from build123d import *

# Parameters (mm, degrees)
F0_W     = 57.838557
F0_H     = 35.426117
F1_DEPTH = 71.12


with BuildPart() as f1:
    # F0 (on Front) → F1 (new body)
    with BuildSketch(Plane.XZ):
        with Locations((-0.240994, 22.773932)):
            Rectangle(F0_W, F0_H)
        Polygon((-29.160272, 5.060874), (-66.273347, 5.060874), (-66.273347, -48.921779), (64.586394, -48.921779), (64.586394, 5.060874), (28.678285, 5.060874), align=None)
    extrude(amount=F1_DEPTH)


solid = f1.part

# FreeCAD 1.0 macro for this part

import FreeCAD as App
import Part
import Sketcher
from FreeCAD import Vector
Q = App.Units.Quantity

doc = App.newDocument("Part")
body = doc.addObject("PartDesign::Body", "Body")

sketch1 = doc.addObject("Sketcher::SketchObject", "Sketch")
body.addObject(sketch1)
sketch1.AttachmentSupport = (doc.XZ_Plane, [""])
sketch1.MapMode = "FlatFace"
sketch1.addGeometry(Part.LineSegment(Vector(-29, 5, 0), Vector(-66, 5, 0)), False)
sketch1.addGeometry(Part.LineSegment(Vector(-66, 5, 0), Vector(-66, -49, 0)), False)
sketch1.addGeometry(Part.LineSegment(Vector(-66, -49, 0), Vector(65, -49, 0)), False)
sketch1.addGeometry(Part.LineSegment(Vector(65, -49, 0), Vector(65, 5, 0)), False)
sketch1.addGeometry(Part.LineSegment(Vector(65, 5, 0), Vector(29, 5, 0)), False)
sketch1.addGeometry(Part.LineSegment(Vector(29, 5, 0), Vector(29, 40, 0)), False)
sketch1.addGeometry(Part.LineSegment(Vector(29, 40, 0), Vector(-29, 40, 0)), False)
sketch1.addGeometry(Part.LineSegment(Vector(-29, 40, 0), Vector(-29, 5, 0)), False)
sketch1.addConstraint(Sketcher.Constraint("Coincident", 0, 2, 1, 1))
sketch1.addConstraint(Sketcher.Constraint("Coincident", 1, 2, 2, 1))
sketch1.addConstraint(Sketcher.Constraint("Coincident", 2, 2, 3, 1))
sketch1.addConstraint(Sketcher.Constraint("Coincident", 3, 2, 4, 1))
sketch1.addConstraint(Sketcher.Constraint("Coincident", 4, 2, 5, 1))
sketch1.addConstraint(Sketcher.Constraint("Coincident", 5, 2, 6, 1))
sketch1.addConstraint(Sketcher.Constraint("Coincident", 6, 2, 7, 1))
sketch1.addConstraint(Sketcher.Constraint("Coincident", 7, 2, 0, 1))
sketch1.addConstraint(Sketcher.Constraint("Horizontal", 0))
sketch1.addConstraint(Sketcher.Constraint("Vertical", 1))
sketch1.addConstraint(Sketcher.Constraint("Horizontal", 2))
sketch1.addConstraint(Sketcher.Constraint("Vertical", 3))
sketch1.addConstraint(Sketcher.Constraint("Horizontal", 4))
sketch1.addConstraint(Sketcher.Constraint("Vertical", 5))
sketch1.addConstraint(Sketcher.Constraint("Horizontal", 6))
sketch1.addConstraint(Sketcher.Constraint("Vertical", 7))
sketch1.addConstraint(Sketcher.Constraint("Horizontal", 0, 2, 3, 2))
sketch1.addConstraint(Sketcher.Constraint("DistanceX", 2, 1, 2, 2, 130.859741))
sketch1.addConstraint(Sketcher.Constraint("DistanceX", 4, 2, 4, 1, 35.908109))
sketch1.addConstraint(Sketcher.Constraint("DistanceX", 0, 2, 0, 1, 37.113074))
sketch1.addConstraint(Sketcher.Constraint("DistanceY", 1, 2, 1, 1, 53.982653))
sketch1.addConstraint(Sketcher.Constraint("DistanceY", 5, 1, 5, 2, 35.426116))
sketch1.addConstraint(Sketcher.Constraint("DistanceY", 1, 2, -1, 1, 48.921779))
sketch1.addConstraint(Sketcher.Constraint("DistanceX", 0, 2, -1, 1, 66.273347))
pad1 = doc.addObject("PartDesign::Pad", "Pad")
body.addObject(pad1)
pad1.Profile = sketch1
pad1.Length = Q("2.8 in")

doc.recompute()
